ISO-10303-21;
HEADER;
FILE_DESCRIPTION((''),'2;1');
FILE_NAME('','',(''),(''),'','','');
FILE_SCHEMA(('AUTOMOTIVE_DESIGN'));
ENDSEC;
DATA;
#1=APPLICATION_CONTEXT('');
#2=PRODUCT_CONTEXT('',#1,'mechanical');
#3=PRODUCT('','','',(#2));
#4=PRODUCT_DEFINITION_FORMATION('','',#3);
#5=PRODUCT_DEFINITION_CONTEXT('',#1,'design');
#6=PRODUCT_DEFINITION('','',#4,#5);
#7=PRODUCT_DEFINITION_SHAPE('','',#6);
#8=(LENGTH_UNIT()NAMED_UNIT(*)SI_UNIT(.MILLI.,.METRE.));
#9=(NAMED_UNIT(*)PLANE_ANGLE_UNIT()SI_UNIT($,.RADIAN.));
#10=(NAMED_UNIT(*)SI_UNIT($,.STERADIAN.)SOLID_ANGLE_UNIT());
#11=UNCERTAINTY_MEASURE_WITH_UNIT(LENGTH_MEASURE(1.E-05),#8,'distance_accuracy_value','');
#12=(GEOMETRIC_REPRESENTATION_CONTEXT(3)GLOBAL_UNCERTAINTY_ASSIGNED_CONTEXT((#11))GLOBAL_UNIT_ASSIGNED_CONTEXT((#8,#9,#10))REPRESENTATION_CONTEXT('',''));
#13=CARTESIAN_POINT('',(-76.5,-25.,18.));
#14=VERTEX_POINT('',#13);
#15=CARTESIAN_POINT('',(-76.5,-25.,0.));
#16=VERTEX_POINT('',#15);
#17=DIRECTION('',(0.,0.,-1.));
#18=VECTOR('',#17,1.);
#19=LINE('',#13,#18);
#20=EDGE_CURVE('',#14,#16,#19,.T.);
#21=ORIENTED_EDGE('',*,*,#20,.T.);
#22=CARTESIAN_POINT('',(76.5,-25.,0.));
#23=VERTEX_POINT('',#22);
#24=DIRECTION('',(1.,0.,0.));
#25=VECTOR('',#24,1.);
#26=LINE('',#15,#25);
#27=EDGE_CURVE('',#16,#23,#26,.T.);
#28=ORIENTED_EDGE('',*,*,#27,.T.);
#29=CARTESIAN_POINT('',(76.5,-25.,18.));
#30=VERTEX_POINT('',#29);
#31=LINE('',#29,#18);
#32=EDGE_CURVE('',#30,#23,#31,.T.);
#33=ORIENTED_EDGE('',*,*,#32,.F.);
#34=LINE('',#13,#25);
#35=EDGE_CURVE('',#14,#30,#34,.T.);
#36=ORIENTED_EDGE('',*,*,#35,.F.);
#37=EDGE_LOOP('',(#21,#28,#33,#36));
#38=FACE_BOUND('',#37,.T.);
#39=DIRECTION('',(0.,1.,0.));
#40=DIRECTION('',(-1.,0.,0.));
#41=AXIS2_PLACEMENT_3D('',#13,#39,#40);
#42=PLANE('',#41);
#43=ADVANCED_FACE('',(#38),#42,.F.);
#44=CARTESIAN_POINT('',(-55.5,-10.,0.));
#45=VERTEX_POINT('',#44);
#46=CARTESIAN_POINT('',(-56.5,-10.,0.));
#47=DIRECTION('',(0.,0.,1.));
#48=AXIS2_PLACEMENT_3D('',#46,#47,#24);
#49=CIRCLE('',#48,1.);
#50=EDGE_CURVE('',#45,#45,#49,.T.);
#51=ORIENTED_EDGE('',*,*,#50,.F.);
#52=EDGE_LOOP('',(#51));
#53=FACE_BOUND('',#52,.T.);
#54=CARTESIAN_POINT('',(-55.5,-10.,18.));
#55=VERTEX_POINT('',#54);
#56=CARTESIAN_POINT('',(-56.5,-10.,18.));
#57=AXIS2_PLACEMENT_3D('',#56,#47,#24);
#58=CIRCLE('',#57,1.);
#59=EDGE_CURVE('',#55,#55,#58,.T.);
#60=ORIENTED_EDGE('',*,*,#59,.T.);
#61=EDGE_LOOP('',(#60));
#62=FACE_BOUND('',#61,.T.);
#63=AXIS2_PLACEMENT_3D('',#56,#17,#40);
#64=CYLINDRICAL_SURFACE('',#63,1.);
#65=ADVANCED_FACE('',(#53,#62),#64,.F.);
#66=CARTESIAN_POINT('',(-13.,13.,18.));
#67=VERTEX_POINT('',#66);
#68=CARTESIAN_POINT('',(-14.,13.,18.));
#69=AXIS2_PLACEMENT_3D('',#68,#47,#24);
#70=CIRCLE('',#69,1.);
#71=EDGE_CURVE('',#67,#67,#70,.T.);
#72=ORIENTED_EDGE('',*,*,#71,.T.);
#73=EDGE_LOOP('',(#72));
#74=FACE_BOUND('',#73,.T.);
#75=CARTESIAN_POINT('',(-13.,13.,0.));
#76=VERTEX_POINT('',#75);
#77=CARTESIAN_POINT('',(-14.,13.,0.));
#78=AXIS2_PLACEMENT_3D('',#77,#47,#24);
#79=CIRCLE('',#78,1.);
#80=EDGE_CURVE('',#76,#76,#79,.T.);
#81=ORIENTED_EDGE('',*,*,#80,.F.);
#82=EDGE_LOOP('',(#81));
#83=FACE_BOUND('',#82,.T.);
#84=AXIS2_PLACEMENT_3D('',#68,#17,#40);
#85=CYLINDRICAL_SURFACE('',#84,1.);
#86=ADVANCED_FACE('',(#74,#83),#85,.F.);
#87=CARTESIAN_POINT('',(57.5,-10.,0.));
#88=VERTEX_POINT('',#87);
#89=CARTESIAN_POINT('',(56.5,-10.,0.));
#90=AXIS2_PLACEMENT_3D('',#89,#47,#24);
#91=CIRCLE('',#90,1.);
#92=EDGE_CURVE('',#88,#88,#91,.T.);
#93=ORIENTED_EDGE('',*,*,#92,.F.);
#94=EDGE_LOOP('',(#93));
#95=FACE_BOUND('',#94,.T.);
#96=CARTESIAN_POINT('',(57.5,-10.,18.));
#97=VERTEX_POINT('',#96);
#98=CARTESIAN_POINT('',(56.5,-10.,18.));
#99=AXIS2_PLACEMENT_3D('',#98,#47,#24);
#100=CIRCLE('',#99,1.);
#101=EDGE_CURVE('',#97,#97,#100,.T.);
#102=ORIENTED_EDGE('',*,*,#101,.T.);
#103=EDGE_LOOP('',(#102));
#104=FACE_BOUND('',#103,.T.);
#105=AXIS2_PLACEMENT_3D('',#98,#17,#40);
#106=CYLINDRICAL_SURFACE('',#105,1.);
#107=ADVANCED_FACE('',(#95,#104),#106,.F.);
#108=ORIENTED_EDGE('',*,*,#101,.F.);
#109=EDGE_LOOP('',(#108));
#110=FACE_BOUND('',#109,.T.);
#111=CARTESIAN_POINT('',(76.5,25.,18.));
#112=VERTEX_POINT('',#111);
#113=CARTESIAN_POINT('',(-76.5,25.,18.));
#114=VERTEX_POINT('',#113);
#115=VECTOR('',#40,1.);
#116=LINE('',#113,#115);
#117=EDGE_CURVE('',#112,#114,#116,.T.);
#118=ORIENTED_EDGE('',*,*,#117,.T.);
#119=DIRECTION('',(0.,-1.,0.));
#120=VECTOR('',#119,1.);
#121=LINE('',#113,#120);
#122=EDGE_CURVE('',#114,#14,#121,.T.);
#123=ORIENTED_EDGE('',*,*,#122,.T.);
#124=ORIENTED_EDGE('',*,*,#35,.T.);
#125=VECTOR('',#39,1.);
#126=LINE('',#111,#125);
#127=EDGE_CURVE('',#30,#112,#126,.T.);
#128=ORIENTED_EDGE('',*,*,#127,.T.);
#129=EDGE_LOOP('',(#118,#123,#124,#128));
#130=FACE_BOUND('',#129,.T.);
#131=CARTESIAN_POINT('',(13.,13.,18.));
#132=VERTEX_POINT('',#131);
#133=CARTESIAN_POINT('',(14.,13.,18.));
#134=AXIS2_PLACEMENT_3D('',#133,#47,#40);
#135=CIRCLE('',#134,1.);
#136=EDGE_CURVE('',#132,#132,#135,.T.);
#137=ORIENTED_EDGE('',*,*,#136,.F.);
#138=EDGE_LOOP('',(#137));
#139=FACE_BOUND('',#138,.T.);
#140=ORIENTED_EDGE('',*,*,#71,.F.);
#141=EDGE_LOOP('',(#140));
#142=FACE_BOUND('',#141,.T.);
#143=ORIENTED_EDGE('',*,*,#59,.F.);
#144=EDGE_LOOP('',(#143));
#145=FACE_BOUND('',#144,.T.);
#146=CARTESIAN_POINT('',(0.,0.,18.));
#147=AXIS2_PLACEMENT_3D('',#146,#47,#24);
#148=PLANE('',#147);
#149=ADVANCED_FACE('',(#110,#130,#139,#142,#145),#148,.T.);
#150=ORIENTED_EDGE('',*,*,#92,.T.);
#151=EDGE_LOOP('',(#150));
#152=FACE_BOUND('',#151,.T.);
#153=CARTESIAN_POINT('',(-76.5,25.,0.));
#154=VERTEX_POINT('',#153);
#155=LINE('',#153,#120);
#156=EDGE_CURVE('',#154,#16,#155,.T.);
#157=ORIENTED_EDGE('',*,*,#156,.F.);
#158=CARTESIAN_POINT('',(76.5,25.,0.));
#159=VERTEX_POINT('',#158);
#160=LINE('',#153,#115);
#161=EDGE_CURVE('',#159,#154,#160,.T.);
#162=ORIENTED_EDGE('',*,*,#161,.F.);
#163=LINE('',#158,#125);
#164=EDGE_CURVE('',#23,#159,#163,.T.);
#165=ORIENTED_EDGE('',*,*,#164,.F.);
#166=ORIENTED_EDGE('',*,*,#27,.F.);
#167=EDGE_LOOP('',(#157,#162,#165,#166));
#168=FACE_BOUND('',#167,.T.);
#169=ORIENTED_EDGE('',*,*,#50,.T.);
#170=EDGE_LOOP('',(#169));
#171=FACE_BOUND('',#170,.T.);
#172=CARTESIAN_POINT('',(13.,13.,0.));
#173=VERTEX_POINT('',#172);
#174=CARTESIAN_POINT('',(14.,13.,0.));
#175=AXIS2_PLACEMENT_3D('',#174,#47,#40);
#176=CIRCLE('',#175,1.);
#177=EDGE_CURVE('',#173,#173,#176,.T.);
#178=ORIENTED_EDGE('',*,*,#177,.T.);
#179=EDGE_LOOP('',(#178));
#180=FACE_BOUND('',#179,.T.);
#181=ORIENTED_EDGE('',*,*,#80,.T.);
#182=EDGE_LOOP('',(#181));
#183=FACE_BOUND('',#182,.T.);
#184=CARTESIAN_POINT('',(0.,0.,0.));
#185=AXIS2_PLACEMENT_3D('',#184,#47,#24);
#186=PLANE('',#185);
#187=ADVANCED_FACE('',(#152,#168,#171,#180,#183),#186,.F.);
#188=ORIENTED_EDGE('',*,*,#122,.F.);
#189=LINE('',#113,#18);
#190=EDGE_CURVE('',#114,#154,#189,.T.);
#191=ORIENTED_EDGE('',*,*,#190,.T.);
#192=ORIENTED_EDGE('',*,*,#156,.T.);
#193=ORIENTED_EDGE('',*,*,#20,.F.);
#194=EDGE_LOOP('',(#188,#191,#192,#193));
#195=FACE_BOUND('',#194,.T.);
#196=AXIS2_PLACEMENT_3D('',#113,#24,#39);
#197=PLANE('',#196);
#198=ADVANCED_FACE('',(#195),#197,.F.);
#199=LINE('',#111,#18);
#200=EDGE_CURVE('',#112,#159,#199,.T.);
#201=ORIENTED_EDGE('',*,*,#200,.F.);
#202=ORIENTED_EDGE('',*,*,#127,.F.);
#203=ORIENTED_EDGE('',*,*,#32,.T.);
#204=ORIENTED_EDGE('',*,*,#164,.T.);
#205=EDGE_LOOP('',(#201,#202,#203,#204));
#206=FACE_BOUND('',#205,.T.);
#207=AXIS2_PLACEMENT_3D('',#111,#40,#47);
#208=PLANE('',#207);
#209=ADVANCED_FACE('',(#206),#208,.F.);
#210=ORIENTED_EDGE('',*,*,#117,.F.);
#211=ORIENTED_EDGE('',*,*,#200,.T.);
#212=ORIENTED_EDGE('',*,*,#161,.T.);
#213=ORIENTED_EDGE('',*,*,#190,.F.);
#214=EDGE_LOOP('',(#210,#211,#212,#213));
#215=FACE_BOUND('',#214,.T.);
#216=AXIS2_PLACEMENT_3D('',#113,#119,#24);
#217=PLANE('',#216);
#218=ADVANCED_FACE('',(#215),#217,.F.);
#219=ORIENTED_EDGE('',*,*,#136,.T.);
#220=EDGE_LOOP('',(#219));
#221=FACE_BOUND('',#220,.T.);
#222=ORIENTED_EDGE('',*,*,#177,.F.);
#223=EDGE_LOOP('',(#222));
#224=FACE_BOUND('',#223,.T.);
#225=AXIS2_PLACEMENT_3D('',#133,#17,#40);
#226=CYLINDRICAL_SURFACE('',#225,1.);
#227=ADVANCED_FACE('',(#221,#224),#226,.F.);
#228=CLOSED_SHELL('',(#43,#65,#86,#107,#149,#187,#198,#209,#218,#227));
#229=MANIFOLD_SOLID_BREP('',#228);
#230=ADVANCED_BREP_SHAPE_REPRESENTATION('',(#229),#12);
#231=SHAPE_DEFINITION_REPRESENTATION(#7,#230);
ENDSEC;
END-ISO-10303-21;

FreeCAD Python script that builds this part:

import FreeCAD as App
import Part
import Sketcher

V = App.Vector


def add_polygon(sketch, points):
    """Adds a closed chain of lines whose ends are joined by coincident constraints."""
    first, n = sketch.GeometryCount, len(points)
    for a, b in zip(points, points[1:] + points[:1]):
        sketch.addGeometry(Part.LineSegment(App.Vector(*a, 0), App.Vector(*b, 0)), False)
    for i in range(n):
        sketch.addConstraint(Sketcher.Constraint("Coincident", first + i, 2, first + (i + 1) % n, 1))

doc = App.newDocument("Part")
body = doc.addObject("PartDesign::Body", "Body")

# Sketch on XY plane
sketch1 = body.newObject("Sketcher::SketchObject", "Sketch")
sketch1.AttachmentSupport = (doc.getObject("XY_Plane"), [""])
sketch1.MapMode = "FlatFace"
add_polygon(sketch1, [(-76.5, 25), (-76.5, -25), (76.5, -25), (76.5, 25)])  # lines 0-3
sketch1.addGeometry(Part.Circle(V(-56.5, -10, 0), V(0, 0, 1), 1), False)  # 4
sketch1.addGeometry(Part.Circle(V(56.5, -10, 0), V(0, 0, 1), 1), False)  # 5
sketch1.addGeometry(Part.Circle(V(-14, 13, 0), V(0, 0, 1), 1), False)  # 6
sketch1.addGeometry(Part.Circle(V(14, 13, 0), V(0, 0, 1), 1), False)  # 7
sketch1.addConstraint(Sketcher.Constraint("Vertical", 0))
sketch1.addConstraint(Sketcher.Constraint("Horizontal", 1))
sketch1.addConstraint(Sketcher.Constraint("Vertical", 2))
sketch1.addConstraint(Sketcher.Constraint("Horizontal", 3))
sketch1.addConstraint(Sketcher.Constraint("Equal", 4, 5))
sketch1.addConstraint(Sketcher.Constraint("Equal", 5, 6))
sketch1.addConstraint(Sketcher.Constraint("Equal", 6, 7))
sketch1.addConstraint(Sketcher.Constraint("Symmetric", 0, 2, 2, 2, -1, 1))
sketch1.addConstraint(Sketcher.Constraint("Symmetric", 4, 3, 5, 3, -2))
sketch1.addConstraint(Sketcher.Constraint("Symmetric", 6, 3, 7, 3, -2))
sketch1.addConstraint(Sketcher.Constraint("Diameter", 4, 2.0))
sketch1.addConstraint(Sketcher.Constraint("DistanceX", 1, 1, 1, 2, 153.0))
sketch1.addConstraint(Sketcher.Constraint("DistanceY", 0, 2, 0, 1, 50.0))
sketch1.addConstraint(Sketcher.Constraint("DistanceY", 4, 3, -1, 1, 10.0))
sketch1.addConstraint(Sketcher.Constraint("DistanceX", 6, 3, -1, 1, 14.0))
sketch1.addConstraint(Sketcher.Constraint("DistanceY", -1, 1, 6, 3, 13.0))
sketch1.addConstraint(Sketcher.Constraint("DistanceX", 4, 3, 5, 3, 113.0))
pad1 = body.newObject("PartDesign::Pad", "Pad")
pad1.Profile = sketch1
pad1.Length = 18

doc.recompute()
